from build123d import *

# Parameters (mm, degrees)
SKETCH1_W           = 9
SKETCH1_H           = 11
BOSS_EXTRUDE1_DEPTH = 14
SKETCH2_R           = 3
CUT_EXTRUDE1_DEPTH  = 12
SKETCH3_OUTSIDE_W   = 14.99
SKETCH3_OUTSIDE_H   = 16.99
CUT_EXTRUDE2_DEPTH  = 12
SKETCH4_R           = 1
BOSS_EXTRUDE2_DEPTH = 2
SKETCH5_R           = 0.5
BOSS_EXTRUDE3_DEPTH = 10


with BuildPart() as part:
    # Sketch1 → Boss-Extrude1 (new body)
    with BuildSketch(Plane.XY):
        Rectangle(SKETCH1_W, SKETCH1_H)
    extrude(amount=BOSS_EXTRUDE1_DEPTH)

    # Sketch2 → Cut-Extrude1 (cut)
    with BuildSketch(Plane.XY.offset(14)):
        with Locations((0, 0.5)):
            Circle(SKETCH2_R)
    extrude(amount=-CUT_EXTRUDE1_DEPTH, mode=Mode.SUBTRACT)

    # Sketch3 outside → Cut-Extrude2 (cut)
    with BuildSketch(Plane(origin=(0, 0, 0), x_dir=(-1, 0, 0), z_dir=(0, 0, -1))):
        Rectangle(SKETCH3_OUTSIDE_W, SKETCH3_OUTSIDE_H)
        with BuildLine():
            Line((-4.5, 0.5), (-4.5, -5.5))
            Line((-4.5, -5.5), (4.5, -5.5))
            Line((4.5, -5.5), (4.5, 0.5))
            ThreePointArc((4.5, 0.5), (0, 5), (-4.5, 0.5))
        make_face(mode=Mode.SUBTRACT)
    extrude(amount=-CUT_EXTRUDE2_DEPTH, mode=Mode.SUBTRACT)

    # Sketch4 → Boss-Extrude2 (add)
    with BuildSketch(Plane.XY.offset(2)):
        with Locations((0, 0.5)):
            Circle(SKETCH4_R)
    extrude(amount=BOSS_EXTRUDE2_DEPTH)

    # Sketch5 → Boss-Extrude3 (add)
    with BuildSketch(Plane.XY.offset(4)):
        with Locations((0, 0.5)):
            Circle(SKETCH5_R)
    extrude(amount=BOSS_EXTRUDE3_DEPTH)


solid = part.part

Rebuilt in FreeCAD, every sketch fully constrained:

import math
import FreeCAD as App
import Part
import Sketcher
from FreeCAD import Vector


def add_polygon(sketch, points):
    """Adds a closed chain of lines whose ends are joined by coincident constraints."""
    first, n = sketch.GeometryCount, len(points)
    for a, b in zip(points, points[1:] + points[:1]):
        sketch.addGeometry(Part.LineSegment(App.Vector(*a, 0), App.Vector(*b, 0)), False)
    for i in range(n):
        sketch.addConstraint(Sketcher.Constraint("Coincident", first + i, 2, first + (i + 1) % n, 1))

doc = App.newDocument("Part")
body = doc.addObject("PartDesign::Body", "Body")

# Sketch on XY plane
sketch1 = body.newObject("Sketcher::SketchObject", "Sketch")
sketch1.AttachmentSupport = (doc.getObject("XY_Plane"), [""])
sketch1.MapMode = "FlatFace"
add_polygon(sketch1, [(-4, 6), (-4, -6), (4, -6), (4, 6)])  # lines 0-3
sketch1.addConstraint(Sketcher.Constraint("Vertical", 0))
sketch1.addConstraint(Sketcher.Constraint("Horizontal", 1))
sketch1.addConstraint(Sketcher.Constraint("Vertical", 2))
sketch1.addConstraint(Sketcher.Constraint("Horizontal", 3))
sketch1.addConstraint(Sketcher.Constraint("Symmetric", 0, 2, 2, 2, -1, 1))
sketch1.addConstraint(Sketcher.Constraint("DistanceX", 1, 1, 1, 2, 9.0))
sketch1.addConstraint(Sketcher.Constraint("DistanceY", 0, 2, 0, 1, 11.0))
pad1 = body.newObject("PartDesign::Pad", "Pad")
pad1.Profile = sketch1
pad1.Length = 14

# Sketch on XY plane
sketch2 = body.newObject("Sketcher::SketchObject", "Sketch001")
sketch2.AttachmentSupport = (doc.getObject("XY_Plane"), [""])
sketch2.MapMode = "FlatFace"
sketch2.AttachmentOffset = App.Placement(Vector(0, 0, 14), App.Rotation())
sketch2.addGeometry(Part.Circle(Vector(0, 0.5, 0), Vector(0, 0, 1), 3), False)
sketch2.addConstraint(Sketcher.Constraint("PointOnObject", 0, 3, -2))
sketch2.addConstraint(Sketcher.Constraint("Diameter", 0, 6.0))
sketch2.addConstraint(Sketcher.Constraint("DistanceY", -1, 1, 0, 3, 0.5))
pocket1 = body.newObject("PartDesign::Pocket", "Pocket")
pocket1.Profile = sketch2
pocket1.Length = 12

# Sketch on XY plane
sketch3 = body.newObject("Sketcher::SketchObject", "Sketch002")
sketch3.AttachmentSupport = (doc.getObject("XY_Plane"), [""])
sketch3.MapMode = "FlatFace"
add_polygon(sketch3, [(7.5, 8.5), (7.5, -8.5), (-7.5, -8.5), (-7.5, 8.5)])  # lines 0-3
sketch3.addGeometry(Part.LineSegment(Vector(4.5, -5.5, 0), Vector(4.5, 0.5, 0)), False)  # 4
sketch3.addGeometry(Part.ArcOfCircle(Part.Circle(Vector(0, 0.5, 0), Vector(0, 0, 1), 4.5), math.radians(0), math.radians(180)), False)  # 5
sketch3.addGeometry(Part.LineSegment(Vector(-4.5, 0.5, 0), Vector(-4.5, -5.5, 0)), False)  # 6
sketch3.addGeometry(Part.LineSegment(Vector(-4.5, -5.5, 0), Vector(4.5, -5.5, 0)), False)  # 7
sketch3.addConstraint(Sketcher.Constraint("Tangent", 4, 2, 5, 1))
sketch3.addConstraint(Sketcher.Constraint("Tangent", 5, 2, 6, 1))
sketch3.addConstraint(Sketcher.Constraint("Coincident", 6, 2, 7, 1))
sketch3.addConstraint(Sketcher.Constraint("Coincident", 7, 2, 4, 1))
sketch3.addConstraint(Sketcher.Constraint("Vertical", 0))
sketch3.addConstraint(Sketcher.Constraint("Horizontal", 1))
sketch3.addConstraint(Sketcher.Constraint("Vertical", 2))
sketch3.addConstraint(Sketcher.Constraint("Horizontal", 3))
sketch3.addConstraint(Sketcher.Constraint("Vertical", 4))
sketch3.addConstraint(Sketcher.Constraint("Vertical", 6))
sketch3.addConstraint(Sketcher.Constraint("Horizontal", 7))
sketch3.addConstraint(Sketcher.Constraint("Symmetric", 0, 2, 2, 2, -1, 1))
sketch3.addConstraint(Sketcher.Constraint("PointOnObject", 5, 3, -2))
sketch3.addConstraint(Sketcher.Constraint("Radius", 5, 4.5))
sketch3.addConstraint(Sketcher.Constraint("DistanceY", 4, 1, 4, 2, 6.0))
sketch3.addConstraint(Sketcher.Constraint("DistanceX", 1, 2, 1, 1, 14.99))
sketch3.addConstraint(Sketcher.Constraint("DistanceY", 0, 2, 0, 1, 16.99))
sketch3.addConstraint(Sketcher.Constraint("DistanceY", -1, 1, 5, 3, 0.5))
pocket2 = body.newObject("PartDesign::Pocket", "Pocket001")
pocket2.Profile = sketch3
pocket2.Length = 12
pocket2.Reversed = True

# Sketch on XY plane
sketch4 = body.newObject("Sketcher::SketchObject", "Sketch003")
sketch4.AttachmentSupport = (doc.getObject("XY_Plane"), [""])
sketch4.MapMode = "FlatFace"
sketch4.AttachmentOffset = App.Placement(Vector(0, 0, 2), App.Rotation())
sketch4.addGeometry(Part.Circle(Vector(0, 0.5, 0), Vector(0, 0, 1), 1), False)
sketch4.addConstraint(Sketcher.Constraint("PointOnObject", 0, 3, -2))
sketch4.addConstraint(Sketcher.Constraint("Diameter", 0, 2.0))
sketch4.addConstraint(Sketcher.Constraint("DistanceY", -1, 1, 0, 3, 0.5))
pad2 = body.newObject("PartDesign::Pad", "Pad001")
pad2.Profile = sketch4
pad2.Length = 2

# Sketch on XY plane
sketch5 = body.newObject("Sketcher::SketchObject", "Sketch004")
sketch5.AttachmentSupport = (doc.getObject("XY_Plane"), [""])
sketch5.MapMode = "FlatFace"
sketch5.AttachmentOffset = App.Placement(Vector(0, 0, 4), App.Rotation())
sketch5.addGeometry(Part.Circle(Vector(0, 0.5, 0), Vector(0, 0, 1), 0.5), False)
sketch5.addConstraint(Sketcher.Constraint("PointOnObject", 0, 3, -2))
sketch5.addConstraint(Sketcher.Constraint("Diameter", 0, 1.0))
sketch5.addConstraint(Sketcher.Constraint("DistanceY", -1, 1, 0, 3, 0.5))
pad3 = body.newObject("PartDesign::Pad", "Pad002")
pad3.Profile = sketch5
pad3.Length = 10

doc.recompute()
